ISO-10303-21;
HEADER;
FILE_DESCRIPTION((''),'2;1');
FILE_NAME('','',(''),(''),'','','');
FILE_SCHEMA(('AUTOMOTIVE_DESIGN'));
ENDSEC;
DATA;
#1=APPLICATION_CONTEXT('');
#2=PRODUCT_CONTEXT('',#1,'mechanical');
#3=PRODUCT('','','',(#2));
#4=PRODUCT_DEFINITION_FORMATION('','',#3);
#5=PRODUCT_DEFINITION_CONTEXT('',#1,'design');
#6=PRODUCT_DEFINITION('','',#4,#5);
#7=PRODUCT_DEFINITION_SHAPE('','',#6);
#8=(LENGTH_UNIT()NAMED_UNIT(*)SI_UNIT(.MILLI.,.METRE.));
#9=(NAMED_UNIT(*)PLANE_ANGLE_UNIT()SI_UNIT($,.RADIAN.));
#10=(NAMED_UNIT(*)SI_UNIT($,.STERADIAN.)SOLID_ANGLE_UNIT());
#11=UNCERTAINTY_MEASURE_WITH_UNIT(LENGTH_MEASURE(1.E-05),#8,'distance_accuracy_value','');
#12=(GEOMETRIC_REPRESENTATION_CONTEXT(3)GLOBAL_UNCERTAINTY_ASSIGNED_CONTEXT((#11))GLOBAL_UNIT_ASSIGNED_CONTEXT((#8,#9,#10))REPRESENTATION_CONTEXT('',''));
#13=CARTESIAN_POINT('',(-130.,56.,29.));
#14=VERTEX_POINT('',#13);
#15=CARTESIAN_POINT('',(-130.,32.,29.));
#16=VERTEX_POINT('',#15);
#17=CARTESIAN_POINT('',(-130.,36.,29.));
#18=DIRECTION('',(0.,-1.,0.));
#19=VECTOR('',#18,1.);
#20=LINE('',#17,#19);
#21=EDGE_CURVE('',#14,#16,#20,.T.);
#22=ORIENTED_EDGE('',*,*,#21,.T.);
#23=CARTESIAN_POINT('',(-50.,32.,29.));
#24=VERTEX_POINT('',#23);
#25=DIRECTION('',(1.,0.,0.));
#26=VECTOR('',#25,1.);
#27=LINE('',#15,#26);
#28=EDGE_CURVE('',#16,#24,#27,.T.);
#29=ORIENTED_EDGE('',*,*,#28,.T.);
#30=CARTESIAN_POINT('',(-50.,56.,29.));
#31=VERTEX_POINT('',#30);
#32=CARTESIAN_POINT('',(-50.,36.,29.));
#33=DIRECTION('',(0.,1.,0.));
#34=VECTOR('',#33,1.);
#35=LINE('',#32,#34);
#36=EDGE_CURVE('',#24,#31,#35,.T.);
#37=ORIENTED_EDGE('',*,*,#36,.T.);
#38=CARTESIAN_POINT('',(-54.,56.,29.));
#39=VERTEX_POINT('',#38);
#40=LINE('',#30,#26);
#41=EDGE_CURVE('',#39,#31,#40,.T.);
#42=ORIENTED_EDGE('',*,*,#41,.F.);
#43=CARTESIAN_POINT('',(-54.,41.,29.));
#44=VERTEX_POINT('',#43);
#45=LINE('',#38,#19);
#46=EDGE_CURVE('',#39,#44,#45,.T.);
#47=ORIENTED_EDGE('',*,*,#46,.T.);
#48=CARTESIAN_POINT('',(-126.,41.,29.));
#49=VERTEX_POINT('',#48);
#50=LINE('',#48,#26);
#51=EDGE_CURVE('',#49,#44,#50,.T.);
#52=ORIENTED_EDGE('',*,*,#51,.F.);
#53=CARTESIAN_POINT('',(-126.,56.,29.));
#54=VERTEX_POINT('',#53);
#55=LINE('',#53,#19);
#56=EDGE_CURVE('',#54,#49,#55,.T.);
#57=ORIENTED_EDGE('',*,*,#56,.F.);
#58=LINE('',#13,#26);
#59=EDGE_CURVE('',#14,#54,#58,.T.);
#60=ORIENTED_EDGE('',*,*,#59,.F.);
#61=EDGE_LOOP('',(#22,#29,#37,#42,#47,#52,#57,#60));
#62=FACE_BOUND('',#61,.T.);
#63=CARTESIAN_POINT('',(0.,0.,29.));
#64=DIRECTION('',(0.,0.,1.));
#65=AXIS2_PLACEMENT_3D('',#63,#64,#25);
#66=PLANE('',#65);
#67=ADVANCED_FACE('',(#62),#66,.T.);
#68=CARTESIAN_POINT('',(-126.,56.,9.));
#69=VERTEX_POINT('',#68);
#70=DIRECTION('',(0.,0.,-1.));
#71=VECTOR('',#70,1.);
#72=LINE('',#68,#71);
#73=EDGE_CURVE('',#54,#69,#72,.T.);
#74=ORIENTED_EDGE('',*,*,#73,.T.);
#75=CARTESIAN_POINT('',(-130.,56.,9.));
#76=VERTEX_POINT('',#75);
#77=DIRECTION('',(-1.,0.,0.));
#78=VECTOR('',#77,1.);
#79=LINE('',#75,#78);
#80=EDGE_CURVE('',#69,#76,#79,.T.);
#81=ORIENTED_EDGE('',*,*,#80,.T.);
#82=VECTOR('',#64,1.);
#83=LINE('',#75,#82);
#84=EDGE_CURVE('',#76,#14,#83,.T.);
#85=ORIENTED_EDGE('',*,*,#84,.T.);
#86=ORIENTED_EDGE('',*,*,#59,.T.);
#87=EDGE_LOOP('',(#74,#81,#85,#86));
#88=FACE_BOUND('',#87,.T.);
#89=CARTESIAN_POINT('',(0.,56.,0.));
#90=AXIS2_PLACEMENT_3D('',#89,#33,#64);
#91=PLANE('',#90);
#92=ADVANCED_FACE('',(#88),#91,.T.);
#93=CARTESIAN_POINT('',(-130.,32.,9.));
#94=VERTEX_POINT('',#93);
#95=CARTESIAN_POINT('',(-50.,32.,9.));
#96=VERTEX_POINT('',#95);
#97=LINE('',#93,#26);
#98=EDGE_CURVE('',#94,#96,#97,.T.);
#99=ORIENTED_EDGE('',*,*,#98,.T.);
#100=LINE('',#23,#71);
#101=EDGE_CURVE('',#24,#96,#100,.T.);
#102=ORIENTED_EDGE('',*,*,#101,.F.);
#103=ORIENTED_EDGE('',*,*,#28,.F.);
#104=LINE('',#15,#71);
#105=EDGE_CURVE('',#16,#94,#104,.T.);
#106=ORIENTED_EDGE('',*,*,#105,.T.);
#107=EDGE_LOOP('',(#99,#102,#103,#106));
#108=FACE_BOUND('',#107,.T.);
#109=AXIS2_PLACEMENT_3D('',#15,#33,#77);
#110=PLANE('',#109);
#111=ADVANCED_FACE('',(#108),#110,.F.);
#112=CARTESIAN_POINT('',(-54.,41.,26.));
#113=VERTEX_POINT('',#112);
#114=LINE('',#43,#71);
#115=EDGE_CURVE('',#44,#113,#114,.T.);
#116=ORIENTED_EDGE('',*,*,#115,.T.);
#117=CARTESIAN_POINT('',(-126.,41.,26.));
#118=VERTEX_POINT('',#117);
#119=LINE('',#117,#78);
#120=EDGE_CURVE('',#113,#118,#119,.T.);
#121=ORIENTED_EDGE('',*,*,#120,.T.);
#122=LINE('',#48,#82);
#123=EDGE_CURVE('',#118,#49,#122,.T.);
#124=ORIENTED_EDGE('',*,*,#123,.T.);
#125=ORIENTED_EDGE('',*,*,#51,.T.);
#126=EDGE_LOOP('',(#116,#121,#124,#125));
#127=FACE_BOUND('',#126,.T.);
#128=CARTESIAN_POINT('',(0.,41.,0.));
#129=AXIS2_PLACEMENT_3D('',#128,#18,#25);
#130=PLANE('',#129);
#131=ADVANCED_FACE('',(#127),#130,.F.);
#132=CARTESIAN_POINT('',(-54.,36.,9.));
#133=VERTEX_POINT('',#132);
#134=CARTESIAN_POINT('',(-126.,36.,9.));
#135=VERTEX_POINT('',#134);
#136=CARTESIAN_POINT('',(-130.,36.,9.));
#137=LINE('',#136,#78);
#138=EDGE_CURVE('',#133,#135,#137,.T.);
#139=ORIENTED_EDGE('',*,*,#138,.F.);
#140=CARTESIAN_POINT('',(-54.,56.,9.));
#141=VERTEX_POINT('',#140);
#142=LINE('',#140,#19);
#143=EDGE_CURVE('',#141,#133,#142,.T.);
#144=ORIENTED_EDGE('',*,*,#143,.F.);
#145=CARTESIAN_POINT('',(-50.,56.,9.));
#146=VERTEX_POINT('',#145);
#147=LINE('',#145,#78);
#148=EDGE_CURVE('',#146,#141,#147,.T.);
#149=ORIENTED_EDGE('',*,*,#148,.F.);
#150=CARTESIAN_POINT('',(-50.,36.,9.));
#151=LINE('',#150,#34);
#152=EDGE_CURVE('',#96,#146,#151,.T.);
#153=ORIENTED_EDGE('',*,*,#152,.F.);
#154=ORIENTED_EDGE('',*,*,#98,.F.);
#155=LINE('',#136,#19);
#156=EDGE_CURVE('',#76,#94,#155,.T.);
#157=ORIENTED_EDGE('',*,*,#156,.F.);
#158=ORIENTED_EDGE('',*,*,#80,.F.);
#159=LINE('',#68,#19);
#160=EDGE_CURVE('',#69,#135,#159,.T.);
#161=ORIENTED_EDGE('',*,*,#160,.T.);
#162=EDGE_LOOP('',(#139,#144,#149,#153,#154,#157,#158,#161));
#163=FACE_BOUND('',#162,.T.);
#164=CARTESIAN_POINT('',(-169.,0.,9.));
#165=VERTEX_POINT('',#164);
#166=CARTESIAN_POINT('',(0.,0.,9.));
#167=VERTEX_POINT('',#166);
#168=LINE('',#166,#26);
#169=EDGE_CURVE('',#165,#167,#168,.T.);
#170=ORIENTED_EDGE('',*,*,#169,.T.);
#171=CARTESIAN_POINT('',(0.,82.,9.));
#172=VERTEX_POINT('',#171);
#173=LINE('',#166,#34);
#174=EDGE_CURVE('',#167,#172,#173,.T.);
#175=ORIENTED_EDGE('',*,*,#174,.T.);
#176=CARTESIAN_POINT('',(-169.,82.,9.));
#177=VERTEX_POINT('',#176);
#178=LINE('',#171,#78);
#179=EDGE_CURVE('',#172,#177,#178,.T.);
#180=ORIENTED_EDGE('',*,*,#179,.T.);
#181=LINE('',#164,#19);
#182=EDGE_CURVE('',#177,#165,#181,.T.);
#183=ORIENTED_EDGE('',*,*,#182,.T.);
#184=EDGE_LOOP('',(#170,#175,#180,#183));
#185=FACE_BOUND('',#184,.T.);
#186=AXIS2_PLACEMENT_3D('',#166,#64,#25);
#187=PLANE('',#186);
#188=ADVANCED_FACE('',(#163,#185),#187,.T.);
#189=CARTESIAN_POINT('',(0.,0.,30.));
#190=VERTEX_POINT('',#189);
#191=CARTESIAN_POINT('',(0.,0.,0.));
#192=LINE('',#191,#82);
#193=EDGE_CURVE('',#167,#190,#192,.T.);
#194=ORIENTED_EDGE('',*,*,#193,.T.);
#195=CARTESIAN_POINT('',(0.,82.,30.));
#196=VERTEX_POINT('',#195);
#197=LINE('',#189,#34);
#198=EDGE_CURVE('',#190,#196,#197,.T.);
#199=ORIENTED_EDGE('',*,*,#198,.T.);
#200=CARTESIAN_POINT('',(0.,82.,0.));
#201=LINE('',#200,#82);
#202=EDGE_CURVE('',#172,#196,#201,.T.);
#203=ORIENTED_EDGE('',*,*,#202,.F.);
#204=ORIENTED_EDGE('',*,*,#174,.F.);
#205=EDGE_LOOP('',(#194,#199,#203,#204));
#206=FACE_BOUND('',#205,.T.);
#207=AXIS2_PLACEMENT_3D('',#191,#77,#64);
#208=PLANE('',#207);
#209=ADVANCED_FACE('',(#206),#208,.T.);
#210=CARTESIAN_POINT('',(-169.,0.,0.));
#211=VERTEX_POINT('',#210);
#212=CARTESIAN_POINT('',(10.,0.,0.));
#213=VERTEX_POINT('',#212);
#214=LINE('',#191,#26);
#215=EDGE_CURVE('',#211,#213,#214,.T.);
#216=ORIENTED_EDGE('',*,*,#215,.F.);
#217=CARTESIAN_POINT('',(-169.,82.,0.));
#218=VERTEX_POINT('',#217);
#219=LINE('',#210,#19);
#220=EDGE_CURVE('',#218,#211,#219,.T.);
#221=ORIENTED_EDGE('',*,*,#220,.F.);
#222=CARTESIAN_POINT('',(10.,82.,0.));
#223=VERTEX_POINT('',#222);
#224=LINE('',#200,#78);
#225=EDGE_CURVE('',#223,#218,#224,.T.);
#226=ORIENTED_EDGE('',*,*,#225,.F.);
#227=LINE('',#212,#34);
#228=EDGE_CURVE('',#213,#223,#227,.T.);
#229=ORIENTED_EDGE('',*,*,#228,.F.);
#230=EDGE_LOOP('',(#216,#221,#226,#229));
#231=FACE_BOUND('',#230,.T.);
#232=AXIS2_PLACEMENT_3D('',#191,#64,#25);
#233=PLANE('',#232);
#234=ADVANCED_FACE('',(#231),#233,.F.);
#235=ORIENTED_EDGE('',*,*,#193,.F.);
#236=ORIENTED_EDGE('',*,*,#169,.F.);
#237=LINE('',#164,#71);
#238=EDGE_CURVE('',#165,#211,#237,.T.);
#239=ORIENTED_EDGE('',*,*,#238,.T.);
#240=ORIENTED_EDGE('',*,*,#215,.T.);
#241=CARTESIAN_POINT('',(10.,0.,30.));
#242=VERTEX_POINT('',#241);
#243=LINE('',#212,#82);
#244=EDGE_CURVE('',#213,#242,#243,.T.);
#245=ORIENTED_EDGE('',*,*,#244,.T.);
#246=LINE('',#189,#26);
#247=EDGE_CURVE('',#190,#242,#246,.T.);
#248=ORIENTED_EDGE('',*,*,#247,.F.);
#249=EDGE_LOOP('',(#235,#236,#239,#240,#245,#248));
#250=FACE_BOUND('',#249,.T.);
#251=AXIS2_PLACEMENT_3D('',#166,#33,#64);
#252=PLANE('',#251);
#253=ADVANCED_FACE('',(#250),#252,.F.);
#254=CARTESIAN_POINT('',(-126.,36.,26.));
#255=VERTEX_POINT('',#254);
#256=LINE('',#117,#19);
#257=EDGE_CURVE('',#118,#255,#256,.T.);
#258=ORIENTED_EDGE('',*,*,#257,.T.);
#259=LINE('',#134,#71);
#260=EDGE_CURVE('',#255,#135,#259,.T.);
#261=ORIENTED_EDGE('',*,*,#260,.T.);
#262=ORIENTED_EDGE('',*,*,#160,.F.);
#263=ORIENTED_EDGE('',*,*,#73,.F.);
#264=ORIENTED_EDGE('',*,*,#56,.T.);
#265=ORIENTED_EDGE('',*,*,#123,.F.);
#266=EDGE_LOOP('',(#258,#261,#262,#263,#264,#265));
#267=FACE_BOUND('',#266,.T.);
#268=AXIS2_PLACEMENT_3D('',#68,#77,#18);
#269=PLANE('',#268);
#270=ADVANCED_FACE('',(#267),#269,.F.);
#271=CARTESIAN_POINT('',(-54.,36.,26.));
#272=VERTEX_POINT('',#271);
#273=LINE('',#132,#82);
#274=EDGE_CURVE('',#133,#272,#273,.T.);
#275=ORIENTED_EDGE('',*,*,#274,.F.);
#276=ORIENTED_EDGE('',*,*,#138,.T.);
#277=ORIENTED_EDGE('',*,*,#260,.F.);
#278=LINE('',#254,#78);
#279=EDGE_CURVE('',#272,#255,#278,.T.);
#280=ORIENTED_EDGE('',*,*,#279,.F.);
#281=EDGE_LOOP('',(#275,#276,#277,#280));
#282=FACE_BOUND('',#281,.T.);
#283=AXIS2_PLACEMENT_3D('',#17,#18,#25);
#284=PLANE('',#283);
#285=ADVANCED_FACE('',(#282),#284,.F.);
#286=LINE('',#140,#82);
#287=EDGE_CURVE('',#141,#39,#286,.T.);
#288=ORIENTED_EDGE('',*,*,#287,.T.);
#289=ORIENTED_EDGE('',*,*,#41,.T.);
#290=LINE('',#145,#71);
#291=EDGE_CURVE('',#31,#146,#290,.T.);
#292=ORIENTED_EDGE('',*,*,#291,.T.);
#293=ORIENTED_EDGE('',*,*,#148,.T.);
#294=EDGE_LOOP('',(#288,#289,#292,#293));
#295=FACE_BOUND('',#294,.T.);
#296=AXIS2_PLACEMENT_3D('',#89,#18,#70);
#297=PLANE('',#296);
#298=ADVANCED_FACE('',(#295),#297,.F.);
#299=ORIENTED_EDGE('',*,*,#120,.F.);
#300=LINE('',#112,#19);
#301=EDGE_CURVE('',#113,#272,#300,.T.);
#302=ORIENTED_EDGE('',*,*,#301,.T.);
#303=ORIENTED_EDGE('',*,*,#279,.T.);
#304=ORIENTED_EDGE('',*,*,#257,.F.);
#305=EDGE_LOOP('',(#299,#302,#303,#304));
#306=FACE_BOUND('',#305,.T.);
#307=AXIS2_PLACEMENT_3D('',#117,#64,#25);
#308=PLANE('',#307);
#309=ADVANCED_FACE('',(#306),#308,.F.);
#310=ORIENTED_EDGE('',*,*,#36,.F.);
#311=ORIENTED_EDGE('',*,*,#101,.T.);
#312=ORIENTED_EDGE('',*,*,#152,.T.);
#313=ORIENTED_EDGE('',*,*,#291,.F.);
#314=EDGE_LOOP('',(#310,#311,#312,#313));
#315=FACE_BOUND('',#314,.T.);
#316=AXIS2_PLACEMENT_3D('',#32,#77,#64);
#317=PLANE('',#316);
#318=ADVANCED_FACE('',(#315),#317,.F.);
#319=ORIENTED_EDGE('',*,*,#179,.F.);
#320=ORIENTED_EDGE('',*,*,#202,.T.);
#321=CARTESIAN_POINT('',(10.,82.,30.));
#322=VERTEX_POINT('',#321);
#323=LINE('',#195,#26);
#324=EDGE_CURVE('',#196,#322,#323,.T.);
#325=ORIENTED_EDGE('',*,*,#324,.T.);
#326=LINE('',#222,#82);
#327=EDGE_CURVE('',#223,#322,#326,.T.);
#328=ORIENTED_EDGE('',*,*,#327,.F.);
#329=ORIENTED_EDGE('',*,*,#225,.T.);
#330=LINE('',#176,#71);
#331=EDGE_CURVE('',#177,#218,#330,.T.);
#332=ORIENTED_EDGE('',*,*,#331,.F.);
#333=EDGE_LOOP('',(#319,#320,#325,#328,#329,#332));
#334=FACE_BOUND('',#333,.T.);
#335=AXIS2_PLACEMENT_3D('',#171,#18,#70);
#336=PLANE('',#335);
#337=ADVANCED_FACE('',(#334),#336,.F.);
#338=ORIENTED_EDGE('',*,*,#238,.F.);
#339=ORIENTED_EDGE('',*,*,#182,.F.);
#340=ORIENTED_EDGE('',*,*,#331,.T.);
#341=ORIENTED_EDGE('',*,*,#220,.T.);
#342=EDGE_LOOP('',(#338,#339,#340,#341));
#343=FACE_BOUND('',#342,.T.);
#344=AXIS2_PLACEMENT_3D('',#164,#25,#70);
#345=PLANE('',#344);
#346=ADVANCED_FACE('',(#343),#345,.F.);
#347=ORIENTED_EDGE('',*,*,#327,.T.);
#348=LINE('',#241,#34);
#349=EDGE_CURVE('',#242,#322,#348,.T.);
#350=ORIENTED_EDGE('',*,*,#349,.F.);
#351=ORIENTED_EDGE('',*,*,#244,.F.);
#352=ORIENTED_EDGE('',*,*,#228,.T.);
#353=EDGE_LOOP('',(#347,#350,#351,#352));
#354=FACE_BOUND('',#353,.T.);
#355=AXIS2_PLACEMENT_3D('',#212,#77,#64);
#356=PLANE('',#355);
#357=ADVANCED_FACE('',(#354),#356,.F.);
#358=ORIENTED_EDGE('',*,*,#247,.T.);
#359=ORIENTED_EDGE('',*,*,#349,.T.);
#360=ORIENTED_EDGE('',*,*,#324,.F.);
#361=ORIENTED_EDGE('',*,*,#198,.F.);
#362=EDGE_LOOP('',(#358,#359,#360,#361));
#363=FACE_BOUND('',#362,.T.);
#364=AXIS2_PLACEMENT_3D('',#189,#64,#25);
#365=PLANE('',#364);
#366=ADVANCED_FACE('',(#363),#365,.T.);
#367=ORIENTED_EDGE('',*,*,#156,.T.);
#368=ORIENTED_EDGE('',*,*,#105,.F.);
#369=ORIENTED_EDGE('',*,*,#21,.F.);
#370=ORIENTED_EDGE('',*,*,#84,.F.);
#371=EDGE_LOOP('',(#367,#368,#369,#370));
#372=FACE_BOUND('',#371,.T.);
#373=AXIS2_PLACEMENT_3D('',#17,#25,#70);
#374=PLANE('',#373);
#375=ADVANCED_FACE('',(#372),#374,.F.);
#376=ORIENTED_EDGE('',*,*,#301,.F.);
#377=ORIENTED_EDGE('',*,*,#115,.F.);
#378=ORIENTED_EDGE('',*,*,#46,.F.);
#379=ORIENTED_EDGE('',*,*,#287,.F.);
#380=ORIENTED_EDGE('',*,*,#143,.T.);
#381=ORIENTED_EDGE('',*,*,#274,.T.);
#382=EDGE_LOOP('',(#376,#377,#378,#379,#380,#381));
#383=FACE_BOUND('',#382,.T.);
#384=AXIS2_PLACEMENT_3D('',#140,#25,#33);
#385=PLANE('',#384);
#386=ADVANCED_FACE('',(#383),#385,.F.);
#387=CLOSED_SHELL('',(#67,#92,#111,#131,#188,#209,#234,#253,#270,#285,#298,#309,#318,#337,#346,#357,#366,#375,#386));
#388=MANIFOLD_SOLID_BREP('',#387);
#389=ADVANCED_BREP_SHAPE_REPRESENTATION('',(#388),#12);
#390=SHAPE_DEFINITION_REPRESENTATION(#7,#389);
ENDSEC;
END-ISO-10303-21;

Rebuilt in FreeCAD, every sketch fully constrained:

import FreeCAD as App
import Part
import Sketcher

V = App.Vector
Q = App.Units.Quantity

doc = App.newDocument("Part")
body = doc.addObject("PartDesign::Body", "Body")

# Sketch on XY plane
sketch1 = body.newObject("Sketcher::SketchObject", "Sketch")
sketch1.AttachmentSupport = (doc.getObject("XY_Plane"), [""])
sketch1.MapMode = "FlatFace"
sketch1.addGeometry(Part.LineSegment(V(-169, 82, 0), V(-169, 0, 0)), False)
sketch1.addGeometry(Part.LineSegment(V(-169, 0, 0), V(0, 0, 0)), False)
sketch1.addGeometry(Part.LineSegment(V(0, 0, 0), V(0, 82, 0)), False)
sketch1.addGeometry(Part.LineSegment(V(0, 82, 0), V(-169, 82, 0)), False)
sketch1.addConstraint(Sketcher.Constraint("Coincident", 0, 2, 1, 1))
sketch1.addConstraint(Sketcher.Constraint("Coincident", 1, 2, 2, 1))
sketch1.addConstraint(Sketcher.Constraint("Coincident", 2, 2, 3, 1))
sketch1.addConstraint(Sketcher.Constraint("Coincident", 3, 2, 0, 1))
sketch1.addConstraint(Sketcher.Constraint("Vertical", 0))
sketch1.addConstraint(Sketcher.Constraint("Horizontal", 1))
sketch1.addConstraint(Sketcher.Constraint("Vertical", 2))
sketch1.addConstraint(Sketcher.Constraint("Horizontal", 3))
sketch1.addConstraint(Sketcher.Constraint("Coincident", 1, 2, -1, 1))
sketch1.addConstraint(Sketcher.Constraint("DistanceX", 1, 1, 1, 2, Q("169 mm")))
sketch1.addConstraint(Sketcher.Constraint("DistanceY", 0, 2, 0, 1, Q("82 mm")))
pad1 = body.newObject("PartDesign::Pad", "Pad")
pad1.Profile = sketch1
pad1.Length = 9

# Sketch on XZ plane
sketch2 = body.newObject("Sketcher::SketchObject", "Sketch001")
sketch2.AttachmentSupport = (doc.getObject("XZ_Plane"), [""])
sketch2.MapMode = "FlatFace"
sketch2.AttachmentOffset = App.Placement(V(0, 0, -82), App.Rotation())
sketch2.addGeometry(Part.LineSegment(V(0, 0, 0), V(0, 30, 0)), False)
sketch2.addGeometry(Part.LineSegment(V(0, 30, 0), V(10, 30, 0)), False)
sketch2.addGeometry(Part.LineSegment(V(10, 30, 0), V(10, 0, 0)), False)
sketch2.addGeometry(Part.LineSegment(V(10, 0, 0), V(0, 0, 0)), False)
sketch2.addConstraint(Sketcher.Constraint("Coincident", 0, 2, 1, 1))
sketch2.addConstraint(Sketcher.Constraint("Coincident", 1, 2, 2, 1))
sketch2.addConstraint(Sketcher.Constraint("Coincident", 2, 2, 3, 1))
sketch2.addConstraint(Sketcher.Constraint("Coincident", 3, 2, 0, 1))
sketch2.addConstraint(Sketcher.Constraint("Vertical", 0))
sketch2.addConstraint(Sketcher.Constraint("Horizontal", 1))
sketch2.addConstraint(Sketcher.Constraint("Vertical", 2))
sketch2.addConstraint(Sketcher.Constraint("Horizontal", 3))
sketch2.addConstraint(Sketcher.Constraint("Coincident", 3, 2, -1, 1))
sketch2.addConstraint(Sketcher.Constraint("DistanceX", 1, 1, 1, 2, Q("10 mm")))
sketch2.addConstraint(Sketcher.Constraint("DistanceY", 0, 1, 0, 2, Q("30 mm")))
pad2 = body.newObject("PartDesign::Pad", "Pad001")
pad2.Profile = sketch2
pad2.Length = 82

# Sketch on XY plane
sketch3 = body.newObject("Sketcher::SketchObject", "Sketch002")
sketch3.AttachmentSupport = (doc.getObject("XY_Plane"), [""])
sketch3.MapMode = "FlatFace"
sketch3.AttachmentOffset = App.Placement(V(0, 0, 9), App.Rotation())
sketch3.addGeometry(Part.LineSegment(V(-130, 36, 0), V(-130, 32, 0)), False)
sketch3.addGeometry(Part.LineSegment(V(-130, 32, 0), V(-50, 32, 0)), False)
sketch3.addGeometry(Part.LineSegment(V(-50, 32, 0), V(-50, 36, 0)), False)
sketch3.addGeometry(Part.LineSegment(V(-50, 36, 0), V(-130, 36, 0)), False)
sketch3.addConstraint(Sketcher.Constraint("Coincident", 0, 2, 1, 1))
sketch3.addConstraint(Sketcher.Constraint("Coincident", 1, 2, 2, 1))
sketch3.addConstraint(Sketcher.Constraint("Coincident", 2, 2, 3, 1))
sketch3.addConstraint(Sketcher.Constraint("Coincident", 3, 2, 0, 1))
sketch3.addConstraint(Sketcher.Constraint("Vertical", 0))
sketch3.addConstraint(Sketcher.Constraint("Horizontal", 1))
sketch3.addConstraint(Sketcher.Constraint("Vertical", 2))
sketch3.addConstraint(Sketcher.Constraint("Horizontal", 3))
sketch3.addConstraint(Sketcher.Constraint("DistanceX", 1, 1, 1, 2, Q("80 mm")))
sketch3.addConstraint(Sketcher.Constraint("DistanceY", 0, 2, 0, 1, Q("4 mm")))
sketch3.addConstraint(Sketcher.Constraint("DistanceX", 0, 2, -1, 1, Q("130 mm")))
sketch3.addConstraint(Sketcher.Constraint("DistanceY", -1, 1, 0, 2, Q("32 mm")))
pad3 = body.newObject("PartDesign::Pad", "Pad002")
pad3.Profile = sketch3
pad3.Length = 20

# Sketch on XZ plane
sketch4 = body.newObject("Sketcher::SketchObject", "Sketch003")
sketch4.AttachmentSupport = (doc.getObject("XZ_Plane"), [""])
sketch4.MapMode = "FlatFace"
sketch4.AttachmentOffset = App.Placement(V(0, 0, -36), App.Rotation())
sketch4.addGeometry(Part.LineSegment(V(-54, 9, 0), V(-54, 29, 0)), False)
sketch4.addGeometry(Part.LineSegment(V(-54, 29, 0), V(-50, 29, 0)), False)
sketch4.addGeometry(Part.LineSegment(V(-50, 29, 0), V(-50, 9, 0)), False)
sketch4.addGeometry(Part.LineSegment(V(-50, 9, 0), V(-54, 9, 0)), False)
sketch4.addConstraint(Sketcher.Constraint("Coincident", 0, 2, 1, 1))
sketch4.addConstraint(Sketcher.Constraint("Coincident", 1, 2, 2, 1))
sketch4.addConstraint(Sketcher.Constraint("Coincident", 2, 2, 3, 1))
sketch4.addConstraint(Sketcher.Constraint("Coincident", 3, 2, 0, 1))
sketch4.addConstraint(Sketcher.Constraint("Vertical", 0))
sketch4.addConstraint(Sketcher.Constraint("Horizontal", 1))
sketch4.addConstraint(Sketcher.Constraint("Vertical", 2))
sketch4.addConstraint(Sketcher.Constraint("Horizontal", 3))
sketch4.addConstraint(Sketcher.Constraint("DistanceX", 1, 1, 1, 2, Q("4 mm")))
sketch4.addConstraint(Sketcher.Constraint("DistanceY", 0, 1, 0, 2, Q("20 mm")))
sketch4.addConstraint(Sketcher.Constraint("DistanceX", 0, 2, -1, 1, Q("54 mm")))
sketch4.addConstraint(Sketcher.Constraint("DistanceY", -1, 1, 0, 2, Q("29 mm")))
pad4 = body.newObject("PartDesign::Pad", "Pad003")
pad4.Profile = sketch4
pad4.Length = 20
pad4.Reversed = True

# Sketch on XZ plane
sketch5 = body.newObject("Sketcher::SketchObject", "Sketch004")
sketch5.AttachmentSupport = (doc.getObject("XZ_Plane"), [""])
sketch5.MapMode = "FlatFace"
sketch5.AttachmentOffset = App.Placement(V(0, 0, -36), App.Rotation())
sketch5.addGeometry(Part.LineSegment(V(-130, 9, 0), V(-130, 29, 0)), False)
sketch5.addGeometry(Part.LineSegment(V(-130, 29, 0), V(-126, 29, 0)), False)
sketch5.addGeometry(Part.LineSegment(V(-126, 29, 0), V(-126, 9, 0)), False)
sketch5.addGeometry(Part.LineSegment(V(-126, 9, 0), V(-130, 9, 0)), False)
sketch5.addConstraint(Sketcher.Constraint("Coincident", 0, 2, 1, 1))
sketch5.addConstraint(Sketcher.Constraint("Coincident", 1, 2, 2, 1))
sketch5.addConstraint(Sketcher.Constraint("Coincident", 2, 2, 3, 1))
sketch5.addConstraint(Sketcher.Constraint("Coincident", 3, 2, 0, 1))
sketch5.addConstraint(Sketcher.Constraint("Vertical", 0))
sketch5.addConstraint(Sketcher.Constraint("Horizontal", 1))
sketch5.addConstraint(Sketcher.Constraint("Vertical", 2))
sketch5.addConstraint(Sketcher.Constraint("Horizontal", 3))
sketch5.addConstraint(Sketcher.Constraint("DistanceX", 1, 1, 1, 2, Q("4 mm")))
sketch5.addConstraint(Sketcher.Constraint("DistanceY", 0, 1, 0, 2, Q("20 mm")))
sketch5.addConstraint(Sketcher.Constraint("DistanceX", 0, 2, -1, 1, Q("130 mm")))
sketch5.addConstraint(Sketcher.Constraint("DistanceY", -1, 1, 0, 2, Q("29 mm")))
pad5 = body.newObject("PartDesign::Pad", "Pad004")
pad5.Profile = sketch5
pad5.Length = 20
pad5.Reversed = True

# Sketch on XZ plane
sketch6 = body.newObject("Sketcher::SketchObject", "Sketch005")
sketch6.AttachmentSupport = (doc.getObject("XZ_Plane"), [""])
sketch6.MapMode = "FlatFace"
sketch6.AttachmentOffset = App.Placement(V(0, 0, -36), App.Rotation())
sketch6.addGeometry(Part.LineSegment(V(-126, 26, 0), V(-126, 29, 0)), False)
sketch6.addGeometry(Part.LineSegment(V(-126, 29, 0), V(-54, 29, 0)), False)
sketch6.addGeometry(Part.LineSegment(V(-54, 29, 0), V(-54, 26, 0)), False)
sketch6.addGeometry(Part.LineSegment(V(-54, 26, 0), V(-126, 26, 0)), False)
sketch6.addConstraint(Sketcher.Constraint("Coincident", 0, 2, 1, 1))
sketch6.addConstraint(Sketcher.Constraint("Coincident", 1, 2, 2, 1))
sketch6.addConstraint(Sketcher.Constraint("Coincident", 2, 2, 3, 1))
sketch6.addConstraint(Sketcher.Constraint("Coincident", 3, 2, 0, 1))
sketch6.addConstraint(Sketcher.Constraint("Vertical", 0))
sketch6.addConstraint(Sketcher.Constraint("Horizontal", 1))
sketch6.addConstraint(Sketcher.Constraint("Vertical", 2))
sketch6.addConstraint(Sketcher.Constraint("Horizontal", 3))
sketch6.addConstraint(Sketcher.Constraint("DistanceX", 1, 1, 1, 2, Q("72 mm")))
sketch6.addConstraint(Sketcher.Constraint("DistanceY", 0, 1, 0, 2, Q("3 mm")))
sketch6.addConstraint(Sketcher.Constraint("DistanceX", 0, 2, -1, 1, Q("126 mm")))
sketch6.addConstraint(Sketcher.Constraint("DistanceY", -1, 1, 0, 2, Q("29 mm")))
pad6 = body.newObject("PartDesign::Pad", "Pad005")
pad6.Profile = sketch6
pad6.Length = 5
pad6.Reversed = True

doc.recompute()
